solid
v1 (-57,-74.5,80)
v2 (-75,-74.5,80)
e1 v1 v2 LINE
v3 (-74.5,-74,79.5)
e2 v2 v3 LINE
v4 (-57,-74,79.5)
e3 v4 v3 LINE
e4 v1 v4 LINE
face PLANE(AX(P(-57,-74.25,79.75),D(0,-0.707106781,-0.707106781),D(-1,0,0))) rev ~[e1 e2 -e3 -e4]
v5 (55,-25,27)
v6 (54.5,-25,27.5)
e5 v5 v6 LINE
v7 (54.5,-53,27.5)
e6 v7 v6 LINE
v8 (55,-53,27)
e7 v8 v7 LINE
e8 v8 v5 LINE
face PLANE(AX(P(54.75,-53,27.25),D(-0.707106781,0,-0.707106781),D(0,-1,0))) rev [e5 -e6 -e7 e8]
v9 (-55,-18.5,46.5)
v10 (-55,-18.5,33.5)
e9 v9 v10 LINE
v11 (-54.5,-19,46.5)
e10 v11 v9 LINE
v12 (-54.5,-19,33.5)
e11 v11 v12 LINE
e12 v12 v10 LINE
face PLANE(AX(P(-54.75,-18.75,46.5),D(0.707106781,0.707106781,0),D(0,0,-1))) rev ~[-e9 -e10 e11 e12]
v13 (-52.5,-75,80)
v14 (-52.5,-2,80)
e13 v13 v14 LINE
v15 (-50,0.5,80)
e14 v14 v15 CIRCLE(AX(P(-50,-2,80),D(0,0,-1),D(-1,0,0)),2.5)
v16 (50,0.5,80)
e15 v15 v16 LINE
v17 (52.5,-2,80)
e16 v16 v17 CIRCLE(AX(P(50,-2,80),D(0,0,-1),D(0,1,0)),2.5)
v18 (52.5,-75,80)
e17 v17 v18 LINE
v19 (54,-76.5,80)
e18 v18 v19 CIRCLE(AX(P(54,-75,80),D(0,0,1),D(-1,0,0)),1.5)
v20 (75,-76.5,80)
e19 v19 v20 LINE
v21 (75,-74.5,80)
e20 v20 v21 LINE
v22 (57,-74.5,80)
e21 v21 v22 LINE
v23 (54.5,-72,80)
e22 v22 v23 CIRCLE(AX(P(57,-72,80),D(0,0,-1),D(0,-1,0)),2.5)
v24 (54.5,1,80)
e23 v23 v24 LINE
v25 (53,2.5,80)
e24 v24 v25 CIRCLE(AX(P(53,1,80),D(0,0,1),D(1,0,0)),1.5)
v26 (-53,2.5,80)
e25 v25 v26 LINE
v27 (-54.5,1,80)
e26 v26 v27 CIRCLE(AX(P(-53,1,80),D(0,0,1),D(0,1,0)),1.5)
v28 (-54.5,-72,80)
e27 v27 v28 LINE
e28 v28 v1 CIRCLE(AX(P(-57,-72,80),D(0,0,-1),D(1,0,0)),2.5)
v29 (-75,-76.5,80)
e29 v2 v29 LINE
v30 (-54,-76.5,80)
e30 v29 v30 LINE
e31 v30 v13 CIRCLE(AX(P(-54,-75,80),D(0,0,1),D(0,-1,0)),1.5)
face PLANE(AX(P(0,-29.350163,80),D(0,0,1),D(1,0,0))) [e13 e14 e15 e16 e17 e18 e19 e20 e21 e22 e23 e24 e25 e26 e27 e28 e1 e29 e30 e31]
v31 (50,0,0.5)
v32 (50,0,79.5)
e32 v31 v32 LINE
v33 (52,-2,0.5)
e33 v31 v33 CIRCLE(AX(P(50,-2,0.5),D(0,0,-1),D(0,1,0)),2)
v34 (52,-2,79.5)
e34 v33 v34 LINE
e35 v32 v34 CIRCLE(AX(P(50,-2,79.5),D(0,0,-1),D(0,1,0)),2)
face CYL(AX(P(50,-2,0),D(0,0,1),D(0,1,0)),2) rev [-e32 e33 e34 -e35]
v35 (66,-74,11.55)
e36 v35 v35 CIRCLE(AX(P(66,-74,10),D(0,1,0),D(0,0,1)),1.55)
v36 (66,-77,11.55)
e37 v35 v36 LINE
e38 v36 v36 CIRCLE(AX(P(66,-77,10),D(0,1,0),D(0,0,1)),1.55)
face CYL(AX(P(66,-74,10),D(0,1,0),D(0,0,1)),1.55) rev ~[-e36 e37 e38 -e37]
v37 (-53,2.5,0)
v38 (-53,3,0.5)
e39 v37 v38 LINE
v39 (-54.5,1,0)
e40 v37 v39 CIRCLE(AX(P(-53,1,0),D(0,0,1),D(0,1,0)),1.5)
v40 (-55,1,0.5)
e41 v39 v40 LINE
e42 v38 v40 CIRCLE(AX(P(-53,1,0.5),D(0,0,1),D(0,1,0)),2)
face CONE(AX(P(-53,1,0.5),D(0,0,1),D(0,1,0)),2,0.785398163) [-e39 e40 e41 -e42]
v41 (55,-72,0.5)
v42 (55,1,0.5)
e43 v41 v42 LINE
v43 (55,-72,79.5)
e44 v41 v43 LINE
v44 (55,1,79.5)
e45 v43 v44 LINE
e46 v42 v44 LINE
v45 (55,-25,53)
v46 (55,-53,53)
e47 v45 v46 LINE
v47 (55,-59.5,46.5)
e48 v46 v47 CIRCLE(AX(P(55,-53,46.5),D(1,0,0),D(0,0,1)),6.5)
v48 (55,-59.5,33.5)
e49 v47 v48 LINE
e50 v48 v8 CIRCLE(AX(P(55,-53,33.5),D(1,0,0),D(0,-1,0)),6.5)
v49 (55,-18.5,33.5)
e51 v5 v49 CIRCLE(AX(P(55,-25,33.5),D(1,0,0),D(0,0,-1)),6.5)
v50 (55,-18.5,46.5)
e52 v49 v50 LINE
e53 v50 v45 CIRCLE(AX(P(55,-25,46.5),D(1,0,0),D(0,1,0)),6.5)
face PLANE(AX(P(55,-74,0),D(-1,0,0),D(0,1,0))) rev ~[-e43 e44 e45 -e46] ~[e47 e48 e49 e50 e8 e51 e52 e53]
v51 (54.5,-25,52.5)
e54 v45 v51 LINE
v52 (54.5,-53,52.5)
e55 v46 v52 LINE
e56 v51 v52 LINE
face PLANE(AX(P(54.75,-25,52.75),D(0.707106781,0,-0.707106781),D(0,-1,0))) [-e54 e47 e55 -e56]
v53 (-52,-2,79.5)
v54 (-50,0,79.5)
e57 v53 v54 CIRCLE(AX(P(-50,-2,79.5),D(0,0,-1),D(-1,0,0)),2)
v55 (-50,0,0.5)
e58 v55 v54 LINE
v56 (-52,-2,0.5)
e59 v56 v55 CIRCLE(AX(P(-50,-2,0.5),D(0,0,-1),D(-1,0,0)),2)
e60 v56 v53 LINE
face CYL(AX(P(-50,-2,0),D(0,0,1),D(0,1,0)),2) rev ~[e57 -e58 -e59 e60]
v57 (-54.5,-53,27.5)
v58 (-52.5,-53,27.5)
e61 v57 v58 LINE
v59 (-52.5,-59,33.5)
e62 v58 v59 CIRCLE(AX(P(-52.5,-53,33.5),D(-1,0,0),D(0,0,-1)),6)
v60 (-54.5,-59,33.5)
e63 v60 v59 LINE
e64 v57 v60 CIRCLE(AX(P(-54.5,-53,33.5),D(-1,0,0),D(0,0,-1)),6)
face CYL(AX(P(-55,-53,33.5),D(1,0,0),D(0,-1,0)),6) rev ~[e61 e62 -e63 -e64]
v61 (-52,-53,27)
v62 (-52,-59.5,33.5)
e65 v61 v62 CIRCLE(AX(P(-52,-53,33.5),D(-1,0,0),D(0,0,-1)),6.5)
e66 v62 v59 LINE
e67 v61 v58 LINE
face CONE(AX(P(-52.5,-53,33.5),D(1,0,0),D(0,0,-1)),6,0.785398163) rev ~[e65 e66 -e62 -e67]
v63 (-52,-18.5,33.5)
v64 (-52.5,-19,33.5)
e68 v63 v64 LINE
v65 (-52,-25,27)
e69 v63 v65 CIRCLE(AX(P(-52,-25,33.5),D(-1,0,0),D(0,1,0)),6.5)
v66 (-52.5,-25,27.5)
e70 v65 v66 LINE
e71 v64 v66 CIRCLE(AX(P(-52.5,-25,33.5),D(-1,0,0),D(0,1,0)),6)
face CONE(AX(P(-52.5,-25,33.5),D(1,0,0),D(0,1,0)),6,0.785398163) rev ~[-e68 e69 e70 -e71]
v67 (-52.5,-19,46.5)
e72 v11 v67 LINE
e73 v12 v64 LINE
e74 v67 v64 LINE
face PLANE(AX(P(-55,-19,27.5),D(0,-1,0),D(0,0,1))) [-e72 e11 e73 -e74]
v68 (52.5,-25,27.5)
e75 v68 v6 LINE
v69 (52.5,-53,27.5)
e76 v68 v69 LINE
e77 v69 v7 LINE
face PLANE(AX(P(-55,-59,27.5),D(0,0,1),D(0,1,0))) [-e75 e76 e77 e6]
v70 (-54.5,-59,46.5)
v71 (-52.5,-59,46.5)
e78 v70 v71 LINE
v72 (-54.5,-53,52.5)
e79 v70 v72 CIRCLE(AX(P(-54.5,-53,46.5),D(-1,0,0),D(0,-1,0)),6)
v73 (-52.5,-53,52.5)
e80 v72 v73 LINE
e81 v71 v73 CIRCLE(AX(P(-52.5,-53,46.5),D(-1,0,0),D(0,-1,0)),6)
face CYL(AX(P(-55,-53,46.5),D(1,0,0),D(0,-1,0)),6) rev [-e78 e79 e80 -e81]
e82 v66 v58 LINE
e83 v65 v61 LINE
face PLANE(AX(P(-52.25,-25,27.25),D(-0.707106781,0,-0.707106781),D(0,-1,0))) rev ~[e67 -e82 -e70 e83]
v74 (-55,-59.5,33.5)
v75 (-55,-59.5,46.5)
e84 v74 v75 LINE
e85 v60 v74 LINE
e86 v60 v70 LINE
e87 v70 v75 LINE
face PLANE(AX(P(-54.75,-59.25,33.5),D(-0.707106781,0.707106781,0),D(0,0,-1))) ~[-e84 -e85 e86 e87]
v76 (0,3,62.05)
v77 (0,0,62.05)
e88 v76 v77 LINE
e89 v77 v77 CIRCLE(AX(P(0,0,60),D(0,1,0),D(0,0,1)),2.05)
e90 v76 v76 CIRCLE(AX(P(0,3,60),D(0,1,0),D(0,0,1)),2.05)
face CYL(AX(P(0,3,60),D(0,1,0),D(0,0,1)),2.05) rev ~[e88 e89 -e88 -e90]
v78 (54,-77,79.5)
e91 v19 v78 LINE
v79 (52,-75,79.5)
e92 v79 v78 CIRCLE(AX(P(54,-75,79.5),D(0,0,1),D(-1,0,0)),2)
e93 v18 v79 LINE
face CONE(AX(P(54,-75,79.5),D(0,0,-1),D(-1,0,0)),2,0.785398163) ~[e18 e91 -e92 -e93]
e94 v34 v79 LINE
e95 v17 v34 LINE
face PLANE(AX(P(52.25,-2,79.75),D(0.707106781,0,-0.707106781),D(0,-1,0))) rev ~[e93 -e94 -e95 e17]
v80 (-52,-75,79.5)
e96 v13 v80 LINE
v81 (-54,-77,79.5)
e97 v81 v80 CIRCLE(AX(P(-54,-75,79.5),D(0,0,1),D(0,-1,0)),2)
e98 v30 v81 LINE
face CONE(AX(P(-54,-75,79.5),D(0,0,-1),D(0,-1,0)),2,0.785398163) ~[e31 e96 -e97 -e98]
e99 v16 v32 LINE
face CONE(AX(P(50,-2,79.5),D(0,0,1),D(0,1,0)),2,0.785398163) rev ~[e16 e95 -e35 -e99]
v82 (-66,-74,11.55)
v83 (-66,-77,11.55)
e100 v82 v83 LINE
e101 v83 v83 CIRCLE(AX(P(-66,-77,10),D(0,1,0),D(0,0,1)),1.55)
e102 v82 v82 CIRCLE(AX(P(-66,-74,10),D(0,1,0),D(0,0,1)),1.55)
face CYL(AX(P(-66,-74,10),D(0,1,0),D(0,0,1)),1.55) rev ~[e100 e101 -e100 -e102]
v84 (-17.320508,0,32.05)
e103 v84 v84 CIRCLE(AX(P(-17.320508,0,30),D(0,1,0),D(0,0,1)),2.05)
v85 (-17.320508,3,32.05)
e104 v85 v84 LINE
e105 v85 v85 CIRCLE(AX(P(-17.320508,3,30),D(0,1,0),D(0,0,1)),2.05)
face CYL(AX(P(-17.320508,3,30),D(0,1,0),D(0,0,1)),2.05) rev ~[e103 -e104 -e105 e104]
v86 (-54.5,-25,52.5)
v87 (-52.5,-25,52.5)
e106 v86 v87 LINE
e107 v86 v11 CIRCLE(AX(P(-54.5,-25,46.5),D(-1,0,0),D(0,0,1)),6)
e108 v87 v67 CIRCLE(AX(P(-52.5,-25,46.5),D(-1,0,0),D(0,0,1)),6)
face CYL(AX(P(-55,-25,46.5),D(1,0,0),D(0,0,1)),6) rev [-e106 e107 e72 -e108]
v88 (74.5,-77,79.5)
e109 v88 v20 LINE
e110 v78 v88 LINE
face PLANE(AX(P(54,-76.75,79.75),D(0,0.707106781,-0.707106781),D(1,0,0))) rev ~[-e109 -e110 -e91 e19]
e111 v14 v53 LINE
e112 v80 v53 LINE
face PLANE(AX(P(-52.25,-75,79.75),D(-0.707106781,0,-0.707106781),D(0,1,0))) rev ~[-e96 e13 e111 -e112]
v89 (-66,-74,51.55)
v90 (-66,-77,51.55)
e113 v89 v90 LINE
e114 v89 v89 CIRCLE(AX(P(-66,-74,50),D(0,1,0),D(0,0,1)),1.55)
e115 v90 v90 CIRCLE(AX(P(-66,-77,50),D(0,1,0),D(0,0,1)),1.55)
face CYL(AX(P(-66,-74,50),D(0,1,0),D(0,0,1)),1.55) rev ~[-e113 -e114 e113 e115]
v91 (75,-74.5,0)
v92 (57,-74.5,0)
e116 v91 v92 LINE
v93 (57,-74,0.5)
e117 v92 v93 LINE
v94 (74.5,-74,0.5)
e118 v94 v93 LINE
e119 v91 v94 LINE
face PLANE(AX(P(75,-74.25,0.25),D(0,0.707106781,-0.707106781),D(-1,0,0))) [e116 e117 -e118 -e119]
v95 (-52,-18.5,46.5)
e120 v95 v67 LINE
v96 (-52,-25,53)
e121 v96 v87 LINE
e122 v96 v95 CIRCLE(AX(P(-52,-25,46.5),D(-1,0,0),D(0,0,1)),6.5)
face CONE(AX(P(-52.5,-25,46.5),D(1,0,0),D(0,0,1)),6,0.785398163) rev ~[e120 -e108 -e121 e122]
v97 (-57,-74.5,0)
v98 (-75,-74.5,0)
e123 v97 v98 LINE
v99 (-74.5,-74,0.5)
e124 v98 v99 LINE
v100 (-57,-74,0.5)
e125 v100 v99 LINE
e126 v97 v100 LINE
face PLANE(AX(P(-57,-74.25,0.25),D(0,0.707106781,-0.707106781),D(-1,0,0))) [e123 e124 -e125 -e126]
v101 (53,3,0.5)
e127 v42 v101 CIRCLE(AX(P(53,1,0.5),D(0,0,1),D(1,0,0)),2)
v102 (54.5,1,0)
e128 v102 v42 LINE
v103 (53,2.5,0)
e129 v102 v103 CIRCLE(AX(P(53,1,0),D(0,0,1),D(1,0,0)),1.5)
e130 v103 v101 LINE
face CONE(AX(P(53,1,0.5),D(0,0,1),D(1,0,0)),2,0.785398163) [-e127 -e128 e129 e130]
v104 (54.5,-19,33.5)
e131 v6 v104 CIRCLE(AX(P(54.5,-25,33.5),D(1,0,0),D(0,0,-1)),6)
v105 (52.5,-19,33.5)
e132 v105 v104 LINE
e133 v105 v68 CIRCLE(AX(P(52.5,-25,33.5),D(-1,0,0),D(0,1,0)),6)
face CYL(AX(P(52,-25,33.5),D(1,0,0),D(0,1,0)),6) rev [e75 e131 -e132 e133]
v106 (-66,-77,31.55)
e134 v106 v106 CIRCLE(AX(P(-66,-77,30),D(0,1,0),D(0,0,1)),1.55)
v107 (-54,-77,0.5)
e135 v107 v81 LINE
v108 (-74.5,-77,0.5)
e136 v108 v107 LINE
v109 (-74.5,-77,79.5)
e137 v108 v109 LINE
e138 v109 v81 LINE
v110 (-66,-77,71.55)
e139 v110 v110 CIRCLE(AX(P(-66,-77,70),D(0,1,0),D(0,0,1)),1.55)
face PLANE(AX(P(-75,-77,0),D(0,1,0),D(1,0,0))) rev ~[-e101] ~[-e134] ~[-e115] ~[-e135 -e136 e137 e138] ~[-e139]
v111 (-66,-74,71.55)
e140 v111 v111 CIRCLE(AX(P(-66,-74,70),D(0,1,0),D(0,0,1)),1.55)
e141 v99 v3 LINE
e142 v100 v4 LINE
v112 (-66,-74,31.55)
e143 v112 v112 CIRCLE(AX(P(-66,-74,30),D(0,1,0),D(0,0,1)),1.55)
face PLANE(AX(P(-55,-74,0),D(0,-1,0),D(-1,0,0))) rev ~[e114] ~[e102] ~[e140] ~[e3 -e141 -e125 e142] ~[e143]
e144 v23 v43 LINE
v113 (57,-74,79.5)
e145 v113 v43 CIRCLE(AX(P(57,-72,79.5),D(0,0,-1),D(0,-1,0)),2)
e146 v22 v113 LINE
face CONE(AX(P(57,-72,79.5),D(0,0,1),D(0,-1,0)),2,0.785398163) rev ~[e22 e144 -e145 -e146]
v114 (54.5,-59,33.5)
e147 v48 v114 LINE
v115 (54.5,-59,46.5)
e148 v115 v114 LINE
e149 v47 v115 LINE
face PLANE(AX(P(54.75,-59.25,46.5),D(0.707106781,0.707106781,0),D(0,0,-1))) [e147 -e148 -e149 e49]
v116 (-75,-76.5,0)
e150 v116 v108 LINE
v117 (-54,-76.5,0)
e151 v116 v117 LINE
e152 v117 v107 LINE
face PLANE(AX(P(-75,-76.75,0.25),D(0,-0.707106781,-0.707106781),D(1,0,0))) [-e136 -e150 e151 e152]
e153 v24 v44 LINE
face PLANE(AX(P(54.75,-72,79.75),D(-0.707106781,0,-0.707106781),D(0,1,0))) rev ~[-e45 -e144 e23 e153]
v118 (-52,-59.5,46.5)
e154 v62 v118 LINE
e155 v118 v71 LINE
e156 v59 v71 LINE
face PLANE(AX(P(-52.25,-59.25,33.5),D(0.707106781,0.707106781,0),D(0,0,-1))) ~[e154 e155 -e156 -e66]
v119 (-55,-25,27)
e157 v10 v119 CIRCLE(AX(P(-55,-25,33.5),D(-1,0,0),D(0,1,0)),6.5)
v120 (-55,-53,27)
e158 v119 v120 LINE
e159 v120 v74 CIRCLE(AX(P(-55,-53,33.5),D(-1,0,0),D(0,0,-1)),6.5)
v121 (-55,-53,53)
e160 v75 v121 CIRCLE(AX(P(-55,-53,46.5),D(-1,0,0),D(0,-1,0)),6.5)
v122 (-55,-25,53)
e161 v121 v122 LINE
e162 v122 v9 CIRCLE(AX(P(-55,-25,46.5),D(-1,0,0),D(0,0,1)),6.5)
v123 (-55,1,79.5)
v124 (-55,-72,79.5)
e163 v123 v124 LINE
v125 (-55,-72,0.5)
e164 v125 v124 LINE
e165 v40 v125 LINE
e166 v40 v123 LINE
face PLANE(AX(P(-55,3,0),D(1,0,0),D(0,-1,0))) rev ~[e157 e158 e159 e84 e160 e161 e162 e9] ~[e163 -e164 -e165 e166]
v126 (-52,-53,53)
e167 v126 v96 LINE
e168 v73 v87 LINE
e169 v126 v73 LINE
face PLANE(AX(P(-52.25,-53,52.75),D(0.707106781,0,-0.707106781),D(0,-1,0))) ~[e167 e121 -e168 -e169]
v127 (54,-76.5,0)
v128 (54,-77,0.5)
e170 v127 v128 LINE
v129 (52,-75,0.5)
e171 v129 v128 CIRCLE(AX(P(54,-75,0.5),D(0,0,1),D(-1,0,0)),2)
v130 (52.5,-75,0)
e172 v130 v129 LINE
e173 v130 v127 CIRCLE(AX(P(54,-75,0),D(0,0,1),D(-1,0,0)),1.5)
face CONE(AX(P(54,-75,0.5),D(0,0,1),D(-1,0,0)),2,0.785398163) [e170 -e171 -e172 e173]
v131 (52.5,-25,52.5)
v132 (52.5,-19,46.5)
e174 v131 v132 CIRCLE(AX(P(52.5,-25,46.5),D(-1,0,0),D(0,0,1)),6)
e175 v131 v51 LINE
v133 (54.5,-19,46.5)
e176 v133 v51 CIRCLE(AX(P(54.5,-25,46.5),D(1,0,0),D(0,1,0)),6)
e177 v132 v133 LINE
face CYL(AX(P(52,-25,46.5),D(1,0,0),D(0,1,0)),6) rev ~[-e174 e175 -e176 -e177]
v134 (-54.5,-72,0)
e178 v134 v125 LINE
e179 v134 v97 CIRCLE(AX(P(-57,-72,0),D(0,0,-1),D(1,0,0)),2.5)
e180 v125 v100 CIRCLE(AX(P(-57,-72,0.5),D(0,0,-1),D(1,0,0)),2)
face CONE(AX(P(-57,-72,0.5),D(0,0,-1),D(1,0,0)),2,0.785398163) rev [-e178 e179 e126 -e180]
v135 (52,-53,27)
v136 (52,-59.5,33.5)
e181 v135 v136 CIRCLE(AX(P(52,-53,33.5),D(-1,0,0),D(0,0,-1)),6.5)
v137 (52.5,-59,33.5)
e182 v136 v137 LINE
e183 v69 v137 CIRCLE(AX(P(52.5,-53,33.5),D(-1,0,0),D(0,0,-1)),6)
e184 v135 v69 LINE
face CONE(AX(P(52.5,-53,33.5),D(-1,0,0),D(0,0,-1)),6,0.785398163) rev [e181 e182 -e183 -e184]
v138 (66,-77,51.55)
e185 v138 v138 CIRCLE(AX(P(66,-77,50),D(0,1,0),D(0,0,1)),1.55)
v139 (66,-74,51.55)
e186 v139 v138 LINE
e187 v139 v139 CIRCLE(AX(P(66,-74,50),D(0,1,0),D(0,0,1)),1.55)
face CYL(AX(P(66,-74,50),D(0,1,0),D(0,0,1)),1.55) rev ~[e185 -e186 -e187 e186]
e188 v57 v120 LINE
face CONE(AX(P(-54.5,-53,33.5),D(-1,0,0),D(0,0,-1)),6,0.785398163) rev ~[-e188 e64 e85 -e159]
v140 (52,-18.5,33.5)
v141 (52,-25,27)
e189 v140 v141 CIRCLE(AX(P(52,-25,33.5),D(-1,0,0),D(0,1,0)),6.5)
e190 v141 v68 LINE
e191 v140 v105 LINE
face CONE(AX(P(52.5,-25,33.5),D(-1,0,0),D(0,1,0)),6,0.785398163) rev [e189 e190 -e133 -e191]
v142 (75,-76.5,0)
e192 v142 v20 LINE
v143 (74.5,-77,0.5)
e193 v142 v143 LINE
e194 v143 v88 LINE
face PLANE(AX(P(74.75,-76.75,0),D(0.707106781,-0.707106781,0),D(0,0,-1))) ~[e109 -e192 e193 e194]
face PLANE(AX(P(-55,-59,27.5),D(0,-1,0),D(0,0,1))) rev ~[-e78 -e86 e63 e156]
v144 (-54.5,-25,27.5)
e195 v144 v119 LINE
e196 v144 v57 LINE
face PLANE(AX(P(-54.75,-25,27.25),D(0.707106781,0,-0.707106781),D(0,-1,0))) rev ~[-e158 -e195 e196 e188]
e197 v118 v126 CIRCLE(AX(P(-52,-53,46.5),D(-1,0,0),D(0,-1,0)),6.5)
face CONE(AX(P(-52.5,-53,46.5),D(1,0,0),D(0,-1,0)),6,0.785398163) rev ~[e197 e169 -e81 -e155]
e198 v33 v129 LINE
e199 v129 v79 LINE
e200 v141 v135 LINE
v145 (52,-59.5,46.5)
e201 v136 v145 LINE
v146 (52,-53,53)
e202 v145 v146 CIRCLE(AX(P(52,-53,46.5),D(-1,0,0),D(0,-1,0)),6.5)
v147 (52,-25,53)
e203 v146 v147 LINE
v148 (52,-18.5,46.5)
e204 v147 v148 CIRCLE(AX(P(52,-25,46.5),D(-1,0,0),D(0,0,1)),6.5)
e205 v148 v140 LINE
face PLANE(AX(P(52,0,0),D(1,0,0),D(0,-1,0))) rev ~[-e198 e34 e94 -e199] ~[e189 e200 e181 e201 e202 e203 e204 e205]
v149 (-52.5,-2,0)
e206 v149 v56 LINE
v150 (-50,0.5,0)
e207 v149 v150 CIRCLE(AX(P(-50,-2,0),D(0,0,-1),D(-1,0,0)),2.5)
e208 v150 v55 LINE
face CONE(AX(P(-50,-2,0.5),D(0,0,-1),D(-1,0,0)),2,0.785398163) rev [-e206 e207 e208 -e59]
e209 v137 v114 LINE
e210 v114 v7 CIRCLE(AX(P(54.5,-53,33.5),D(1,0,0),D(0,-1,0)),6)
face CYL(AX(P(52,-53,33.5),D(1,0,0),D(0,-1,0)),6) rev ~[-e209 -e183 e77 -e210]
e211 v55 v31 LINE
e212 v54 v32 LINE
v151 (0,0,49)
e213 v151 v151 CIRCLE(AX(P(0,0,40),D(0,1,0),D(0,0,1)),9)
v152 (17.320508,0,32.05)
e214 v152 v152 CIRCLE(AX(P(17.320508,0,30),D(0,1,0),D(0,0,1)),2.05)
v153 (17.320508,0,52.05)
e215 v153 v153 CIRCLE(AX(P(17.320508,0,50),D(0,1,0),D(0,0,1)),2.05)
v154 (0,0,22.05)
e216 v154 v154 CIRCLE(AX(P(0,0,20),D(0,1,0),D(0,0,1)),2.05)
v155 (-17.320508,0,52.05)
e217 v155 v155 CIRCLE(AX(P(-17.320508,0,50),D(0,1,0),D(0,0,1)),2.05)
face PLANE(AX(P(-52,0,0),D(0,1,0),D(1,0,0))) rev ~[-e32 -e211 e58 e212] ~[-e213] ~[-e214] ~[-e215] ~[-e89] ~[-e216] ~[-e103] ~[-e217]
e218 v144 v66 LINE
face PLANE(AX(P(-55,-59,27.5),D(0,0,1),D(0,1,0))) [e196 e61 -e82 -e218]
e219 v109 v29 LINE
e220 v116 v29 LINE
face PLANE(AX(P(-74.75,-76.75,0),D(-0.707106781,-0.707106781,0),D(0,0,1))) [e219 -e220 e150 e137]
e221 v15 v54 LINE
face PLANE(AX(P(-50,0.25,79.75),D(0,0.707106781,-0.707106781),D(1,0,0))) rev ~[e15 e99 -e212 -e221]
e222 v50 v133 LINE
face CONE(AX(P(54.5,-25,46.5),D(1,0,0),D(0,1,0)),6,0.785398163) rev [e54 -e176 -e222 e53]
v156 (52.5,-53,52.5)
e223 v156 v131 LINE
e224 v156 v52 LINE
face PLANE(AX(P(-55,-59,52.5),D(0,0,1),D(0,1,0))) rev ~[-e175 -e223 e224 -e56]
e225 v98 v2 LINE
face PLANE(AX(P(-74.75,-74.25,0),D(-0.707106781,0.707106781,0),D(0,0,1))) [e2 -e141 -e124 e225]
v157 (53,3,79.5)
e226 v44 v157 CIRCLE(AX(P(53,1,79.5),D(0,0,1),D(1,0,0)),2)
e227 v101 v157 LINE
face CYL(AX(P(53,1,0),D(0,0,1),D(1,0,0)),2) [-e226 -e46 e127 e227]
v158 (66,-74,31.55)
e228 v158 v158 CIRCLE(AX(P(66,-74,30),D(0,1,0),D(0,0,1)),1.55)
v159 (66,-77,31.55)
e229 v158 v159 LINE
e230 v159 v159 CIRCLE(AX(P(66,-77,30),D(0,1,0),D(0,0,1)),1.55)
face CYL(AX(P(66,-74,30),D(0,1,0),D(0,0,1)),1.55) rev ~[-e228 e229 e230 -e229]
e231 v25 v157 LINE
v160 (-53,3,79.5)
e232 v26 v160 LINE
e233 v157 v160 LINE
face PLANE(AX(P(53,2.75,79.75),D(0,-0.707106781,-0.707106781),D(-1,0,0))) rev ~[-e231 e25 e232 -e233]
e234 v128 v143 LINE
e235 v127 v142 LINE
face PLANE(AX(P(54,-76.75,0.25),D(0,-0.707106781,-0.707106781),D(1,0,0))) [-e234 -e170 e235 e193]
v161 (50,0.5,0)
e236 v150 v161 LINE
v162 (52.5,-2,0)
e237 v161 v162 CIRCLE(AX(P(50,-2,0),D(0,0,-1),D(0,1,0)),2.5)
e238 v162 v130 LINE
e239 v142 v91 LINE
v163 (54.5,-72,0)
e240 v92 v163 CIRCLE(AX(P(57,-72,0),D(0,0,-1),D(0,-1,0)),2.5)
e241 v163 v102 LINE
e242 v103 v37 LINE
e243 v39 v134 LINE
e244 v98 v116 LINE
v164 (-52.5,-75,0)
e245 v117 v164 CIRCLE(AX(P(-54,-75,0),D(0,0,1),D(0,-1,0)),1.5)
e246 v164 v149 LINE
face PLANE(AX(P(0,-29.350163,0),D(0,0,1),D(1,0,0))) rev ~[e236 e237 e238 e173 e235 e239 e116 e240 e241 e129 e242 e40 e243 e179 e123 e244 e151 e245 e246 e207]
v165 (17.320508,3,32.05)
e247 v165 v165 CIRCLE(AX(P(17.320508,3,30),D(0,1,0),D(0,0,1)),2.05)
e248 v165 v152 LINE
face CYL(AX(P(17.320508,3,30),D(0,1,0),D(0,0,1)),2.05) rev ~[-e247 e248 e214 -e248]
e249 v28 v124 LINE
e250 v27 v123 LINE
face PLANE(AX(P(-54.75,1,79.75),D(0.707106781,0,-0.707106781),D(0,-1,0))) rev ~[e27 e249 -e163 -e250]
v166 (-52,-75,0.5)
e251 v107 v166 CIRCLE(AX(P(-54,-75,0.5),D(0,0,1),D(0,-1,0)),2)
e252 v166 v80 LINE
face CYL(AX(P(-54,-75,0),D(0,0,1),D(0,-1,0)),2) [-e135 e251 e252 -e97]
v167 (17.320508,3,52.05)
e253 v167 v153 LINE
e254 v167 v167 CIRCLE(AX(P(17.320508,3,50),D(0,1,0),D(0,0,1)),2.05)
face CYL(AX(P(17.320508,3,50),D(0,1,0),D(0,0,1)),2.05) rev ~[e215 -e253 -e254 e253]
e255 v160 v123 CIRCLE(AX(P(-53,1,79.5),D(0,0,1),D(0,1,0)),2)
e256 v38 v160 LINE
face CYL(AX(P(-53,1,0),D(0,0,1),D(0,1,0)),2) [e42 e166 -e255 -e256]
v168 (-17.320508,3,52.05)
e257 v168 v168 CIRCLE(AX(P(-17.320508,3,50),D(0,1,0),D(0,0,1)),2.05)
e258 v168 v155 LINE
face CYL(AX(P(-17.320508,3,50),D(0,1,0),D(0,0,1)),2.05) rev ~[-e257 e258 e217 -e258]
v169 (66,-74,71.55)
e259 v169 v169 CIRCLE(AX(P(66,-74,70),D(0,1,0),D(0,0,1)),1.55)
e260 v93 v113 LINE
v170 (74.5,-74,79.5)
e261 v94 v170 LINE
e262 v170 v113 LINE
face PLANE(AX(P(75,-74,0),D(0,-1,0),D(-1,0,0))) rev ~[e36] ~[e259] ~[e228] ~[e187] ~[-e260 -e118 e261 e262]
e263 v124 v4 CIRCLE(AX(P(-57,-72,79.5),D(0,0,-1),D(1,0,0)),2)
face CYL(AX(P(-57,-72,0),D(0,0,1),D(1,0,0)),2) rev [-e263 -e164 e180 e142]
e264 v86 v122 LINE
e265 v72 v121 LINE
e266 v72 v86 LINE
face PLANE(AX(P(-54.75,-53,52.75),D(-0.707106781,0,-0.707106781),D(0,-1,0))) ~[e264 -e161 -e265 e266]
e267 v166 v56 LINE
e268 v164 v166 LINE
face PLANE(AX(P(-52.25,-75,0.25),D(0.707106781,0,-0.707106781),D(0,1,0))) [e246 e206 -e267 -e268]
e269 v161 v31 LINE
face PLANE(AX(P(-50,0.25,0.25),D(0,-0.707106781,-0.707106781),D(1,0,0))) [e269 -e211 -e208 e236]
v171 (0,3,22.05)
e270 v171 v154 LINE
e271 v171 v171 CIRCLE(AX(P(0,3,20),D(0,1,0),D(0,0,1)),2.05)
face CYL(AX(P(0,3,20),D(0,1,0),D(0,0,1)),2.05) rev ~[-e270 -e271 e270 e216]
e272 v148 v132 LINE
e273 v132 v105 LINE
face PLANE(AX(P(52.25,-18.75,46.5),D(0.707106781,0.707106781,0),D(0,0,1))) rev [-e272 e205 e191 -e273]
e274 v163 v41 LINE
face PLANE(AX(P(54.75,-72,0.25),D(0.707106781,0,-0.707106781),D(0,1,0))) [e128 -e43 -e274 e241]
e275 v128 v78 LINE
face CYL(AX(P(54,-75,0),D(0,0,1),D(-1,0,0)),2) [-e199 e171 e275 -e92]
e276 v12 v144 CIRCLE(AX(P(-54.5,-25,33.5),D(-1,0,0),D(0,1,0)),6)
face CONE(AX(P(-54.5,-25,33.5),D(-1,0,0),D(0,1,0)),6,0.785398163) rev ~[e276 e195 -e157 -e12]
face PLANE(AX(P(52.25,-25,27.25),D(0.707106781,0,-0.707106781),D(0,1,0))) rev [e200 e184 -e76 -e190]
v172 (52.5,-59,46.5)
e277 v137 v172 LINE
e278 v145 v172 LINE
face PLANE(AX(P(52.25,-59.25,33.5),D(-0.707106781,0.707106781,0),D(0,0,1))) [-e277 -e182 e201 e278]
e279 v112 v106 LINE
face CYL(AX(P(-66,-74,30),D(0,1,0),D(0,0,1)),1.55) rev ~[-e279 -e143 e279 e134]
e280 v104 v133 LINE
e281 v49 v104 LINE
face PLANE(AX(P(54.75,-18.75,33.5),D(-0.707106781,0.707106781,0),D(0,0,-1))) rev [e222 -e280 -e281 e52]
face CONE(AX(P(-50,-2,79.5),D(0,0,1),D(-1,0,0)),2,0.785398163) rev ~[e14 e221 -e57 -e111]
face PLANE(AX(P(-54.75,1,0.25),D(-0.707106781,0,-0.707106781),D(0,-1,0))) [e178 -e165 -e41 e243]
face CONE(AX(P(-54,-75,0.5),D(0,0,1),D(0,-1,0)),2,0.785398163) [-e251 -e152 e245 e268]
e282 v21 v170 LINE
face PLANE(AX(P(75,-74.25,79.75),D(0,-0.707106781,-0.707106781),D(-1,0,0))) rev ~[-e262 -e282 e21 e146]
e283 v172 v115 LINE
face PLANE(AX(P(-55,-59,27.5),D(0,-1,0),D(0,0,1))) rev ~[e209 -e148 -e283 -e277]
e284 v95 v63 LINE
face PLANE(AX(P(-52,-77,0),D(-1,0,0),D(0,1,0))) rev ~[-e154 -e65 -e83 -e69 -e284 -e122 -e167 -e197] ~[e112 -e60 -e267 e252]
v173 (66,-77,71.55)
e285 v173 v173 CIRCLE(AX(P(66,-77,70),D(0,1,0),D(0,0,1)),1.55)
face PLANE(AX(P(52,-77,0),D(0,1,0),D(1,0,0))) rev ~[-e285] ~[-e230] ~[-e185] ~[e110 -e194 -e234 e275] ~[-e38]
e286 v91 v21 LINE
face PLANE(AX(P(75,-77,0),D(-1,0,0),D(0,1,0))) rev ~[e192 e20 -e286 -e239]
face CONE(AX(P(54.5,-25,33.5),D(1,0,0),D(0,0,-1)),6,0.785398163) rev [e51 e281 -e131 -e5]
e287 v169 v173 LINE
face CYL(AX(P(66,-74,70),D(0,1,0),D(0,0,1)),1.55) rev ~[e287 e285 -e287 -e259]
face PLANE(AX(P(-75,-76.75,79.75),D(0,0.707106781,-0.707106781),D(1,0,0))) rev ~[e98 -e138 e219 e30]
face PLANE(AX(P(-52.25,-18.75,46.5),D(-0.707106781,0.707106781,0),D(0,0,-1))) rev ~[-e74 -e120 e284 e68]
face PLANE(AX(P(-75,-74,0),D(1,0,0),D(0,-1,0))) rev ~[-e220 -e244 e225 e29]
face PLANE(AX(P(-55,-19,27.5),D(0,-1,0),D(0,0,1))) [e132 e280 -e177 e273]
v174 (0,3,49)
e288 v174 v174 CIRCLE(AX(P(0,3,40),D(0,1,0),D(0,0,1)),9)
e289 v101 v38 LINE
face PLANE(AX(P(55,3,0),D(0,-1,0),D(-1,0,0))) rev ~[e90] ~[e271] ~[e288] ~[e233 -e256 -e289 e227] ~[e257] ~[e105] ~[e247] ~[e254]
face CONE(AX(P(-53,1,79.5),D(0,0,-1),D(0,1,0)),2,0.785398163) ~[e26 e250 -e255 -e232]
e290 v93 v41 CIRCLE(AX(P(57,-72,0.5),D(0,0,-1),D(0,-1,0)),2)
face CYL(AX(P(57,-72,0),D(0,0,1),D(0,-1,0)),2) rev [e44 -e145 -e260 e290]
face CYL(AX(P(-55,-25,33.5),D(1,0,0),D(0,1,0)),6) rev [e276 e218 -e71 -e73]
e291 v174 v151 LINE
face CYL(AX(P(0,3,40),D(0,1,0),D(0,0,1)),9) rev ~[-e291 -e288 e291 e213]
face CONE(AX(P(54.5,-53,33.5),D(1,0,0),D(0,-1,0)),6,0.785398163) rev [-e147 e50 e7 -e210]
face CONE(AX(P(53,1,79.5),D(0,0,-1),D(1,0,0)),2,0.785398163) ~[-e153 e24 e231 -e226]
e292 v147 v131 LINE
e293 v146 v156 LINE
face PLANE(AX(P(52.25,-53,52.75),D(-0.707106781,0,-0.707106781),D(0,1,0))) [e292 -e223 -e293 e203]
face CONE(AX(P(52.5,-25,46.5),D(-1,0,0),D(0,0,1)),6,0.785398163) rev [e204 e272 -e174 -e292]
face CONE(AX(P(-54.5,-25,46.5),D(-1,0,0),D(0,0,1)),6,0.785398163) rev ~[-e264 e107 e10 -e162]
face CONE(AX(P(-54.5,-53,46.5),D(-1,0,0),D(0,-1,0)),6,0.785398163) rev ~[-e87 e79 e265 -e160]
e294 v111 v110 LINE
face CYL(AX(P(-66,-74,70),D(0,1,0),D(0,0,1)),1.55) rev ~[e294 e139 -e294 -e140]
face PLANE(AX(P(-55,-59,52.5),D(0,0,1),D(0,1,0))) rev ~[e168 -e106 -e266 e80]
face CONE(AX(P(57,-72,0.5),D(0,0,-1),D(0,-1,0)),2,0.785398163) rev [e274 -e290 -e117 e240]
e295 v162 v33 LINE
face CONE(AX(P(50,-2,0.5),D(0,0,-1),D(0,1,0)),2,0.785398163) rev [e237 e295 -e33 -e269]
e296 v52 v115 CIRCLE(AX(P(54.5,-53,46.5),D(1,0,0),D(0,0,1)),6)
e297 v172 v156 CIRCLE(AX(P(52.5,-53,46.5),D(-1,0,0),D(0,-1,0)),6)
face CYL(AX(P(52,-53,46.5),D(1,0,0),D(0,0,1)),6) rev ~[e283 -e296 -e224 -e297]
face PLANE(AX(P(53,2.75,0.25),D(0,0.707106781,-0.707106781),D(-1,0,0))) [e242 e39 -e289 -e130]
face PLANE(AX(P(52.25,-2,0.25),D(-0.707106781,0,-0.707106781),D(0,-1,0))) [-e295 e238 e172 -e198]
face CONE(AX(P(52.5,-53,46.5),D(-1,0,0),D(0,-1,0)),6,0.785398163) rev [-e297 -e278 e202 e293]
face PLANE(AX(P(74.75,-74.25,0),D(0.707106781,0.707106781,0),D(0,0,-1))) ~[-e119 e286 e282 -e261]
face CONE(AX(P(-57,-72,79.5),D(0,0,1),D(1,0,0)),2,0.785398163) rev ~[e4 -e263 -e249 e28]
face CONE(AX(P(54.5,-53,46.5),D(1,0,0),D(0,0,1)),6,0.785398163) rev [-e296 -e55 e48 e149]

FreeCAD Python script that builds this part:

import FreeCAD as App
import Part
import Sketcher
Q = App.Units.Quantity


def edges_at(feature, points):
    """Names of the edges that pass closest to the given points."""
    edges = feature.Shape.Edges
    near = lambda p: min(range(len(edges)), key=lambda i: edges[i].distToShape(Part.Vertex(*p))[0])
    return sorted({f"Edge{near(p) + 1}" for p in points})


def add_polygon(sketch, points):
    """Adds a closed chain of lines whose ends are joined by coincident constraints."""
    first, n = sketch.GeometryCount, len(points)
    for a, b in zip(points, points[1:] + points[:1]):
        sketch.addGeometry(Part.LineSegment(App.Vector(*a, 0), App.Vector(*b, 0)), False)
    for i in range(n):
        sketch.addConstraint(Sketcher.Constraint("Coincident", first + i, 2, first + (i + 1) % n, 1))

doc = App.newDocument("Part")
body = doc.addObject("PartDesign::Body", "Body")

sketch1 = body.newObject("Sketcher::SketchObject", "Sketch")
sketch1.AttachmentSupport = (doc.getObject("XY_Plane"), [""])
sketch1.MapMode = "FlatFace"
add_polygon(sketch1, [(-52, 0), (52, 0), (52, -77), (75, -77), (75, -74), (55, -74), (55, 3), (-55, 3), (-55, -74), (-75, -74), (-75, -77), (-52, -77)])
sketch1.addConstraint(Sketcher.Constraint("Horizontal", 0))
sketch1.addConstraint(Sketcher.Constraint("Vertical", 1))
sketch1.addConstraint(Sketcher.Constraint("Horizontal", 2))
sketch1.addConstraint(Sketcher.Constraint("Vertical", 3))
sketch1.addConstraint(Sketcher.Constraint("Horizontal", 4))
sketch1.addConstraint(Sketcher.Constraint("Vertical", 5))
sketch1.addConstraint(Sketcher.Constraint("Horizontal", 6))
sketch1.addConstraint(Sketcher.Constraint("Vertical", 7))
sketch1.addConstraint(Sketcher.Constraint("Horizontal", 8))
sketch1.addConstraint(Sketcher.Constraint("Vertical", 9))
sketch1.addConstraint(Sketcher.Constraint("Horizontal", 10))
sketch1.addConstraint(Sketcher.Constraint("Vertical", 11))
sketch1.addConstraint(Sketcher.Constraint("Symmetric", 0, 2, 11, 2, -1, 1))
sketch1.addConstraint(Sketcher.Constraint("Symmetric", 4, 2, 7, 2, -2))
sketch1.addConstraint(Sketcher.Constraint("Symmetric", 2, 2, 9, 2, -2))
sketch1.addConstraint(Sketcher.Constraint("Equal", 1, 5))
sketch1.addConstraint(Sketcher.Constraint("DistanceX", 0, 1, 0, 2, Q("104 mm")))
sketch1.addConstraint(Sketcher.Constraint("DistanceX", 2, 1, 2, 2, Q("23 mm")))
sketch1.addConstraint(Sketcher.Constraint("DistanceX", 4, 2, 4, 1, Q("20 mm")))
sketch1.addConstraint(Sketcher.Constraint("DistanceY", 1, 2, 1, 1, Q("77 mm")))
sketch1.addConstraint(Sketcher.Constraint("DistanceY", 3, 1, 3, 2, Q("3 mm")))
pad1 = body.newObject("PartDesign::Pad", "Pad")
pad1.Profile = sketch1
pad1.Length = 80
doc.recompute()

fillet = body.newObject("PartDesign::Fillet", "Fillet")
fillet.Base = (pad1, edges_at(pad1, [
    (52, 0, 40),
    (-52, 0, 40),
    (-52, -77, 40),
    (-55, -74, 40),
    (-55, 3, 40),
    (55, 3, 40),
    (55, -74, 40),
    (52, -77, 40),
]))
fillet.Radius = 2

sketch2 = body.newObject("Sketcher::SketchObject", "Sketch001")
sketch2.AttachmentSupport = (doc.getObject("XZ_Plane"), [""])
sketch2.MapMode = "FlatFace"
sketch2.AttachmentOffset = App.Placement(App.Vector(0, 0, -3), App.Rotation())
sketch2.addGeometry(Part.Circle(App.Vector(-17.320508, 30, 0), App.Vector(0, 0, 1), 2.05), False)
sketch2.addConstraint(Sketcher.Constraint("Diameter", 0, Q("4.1 mm")))
sketch2.addConstraint(Sketcher.Constraint("DistanceY", -1, 1, 0, 3, Q("30 mm")))
sketch2.addConstraint(Sketcher.Constraint("DistanceX", 0, 3, -1, 1, Q("17.320508 mm")))
pocket1 = body.newObject("PartDesign::Pocket", "Pocket")
pocket1.Profile = sketch2
pocket1.Type = "UpToFirst"
pocket1.Reversed = True

sketch3 = body.newObject("Sketcher::SketchObject", "Sketch002")
sketch3.AttachmentSupport = (doc.getObject("XZ_Plane"), [""])
sketch3.MapMode = "FlatFace"
sketch3.AttachmentOffset = App.Placement(App.Vector(0, 0, -3), App.Rotation())
sketch3.addGeometry(Part.Circle(App.Vector(0, 20, 0), App.Vector(0, 0, 1), 2.05), False)
sketch3.addConstraint(Sketcher.Constraint("PointOnObject", 0, 3, -2))
sketch3.addConstraint(Sketcher.Constraint("Diameter", 0, Q("4.1 mm")))
sketch3.addConstraint(Sketcher.Constraint("DistanceY", -1, 1, 0, 3, Q("20 mm")))
pocket2 = body.newObject("PartDesign::Pocket", "Pocket001")
pocket2.Profile = sketch3
pocket2.Type = "UpToFirst"
pocket2.Reversed = True

sketch4 = body.newObject("Sketcher::SketchObject", "Sketch003")
sketch4.AttachmentSupport = (doc.getObject("XZ_Plane"), [""])
sketch4.MapMode = "FlatFace"
sketch4.AttachmentOffset = App.Placement(App.Vector(0, 0, -3), App.Rotation())
sketch4.addGeometry(Part.Circle(App.Vector(17.320508, 30, 0), App.Vector(0, 0, 1), 2.05), False)
sketch4.addConstraint(Sketcher.Constraint("Diameter", 0, Q("4.1 mm")))
sketch4.addConstraint(Sketcher.Constraint("DistanceY", -1, 1, 0, 3, Q("30 mm")))
sketch4.addConstraint(Sketcher.Constraint("DistanceX", -1, 1, 0, 3, Q("17.320508 mm")))
pocket3 = body.newObject("PartDesign::Pocket", "Pocket002")
pocket3.Profile = sketch4
pocket3.Type = "UpToFirst"
pocket3.Reversed = True

sketch5 = body.newObject("Sketcher::SketchObject", "Sketch004")
sketch5.AttachmentSupport = (doc.getObject("XZ_Plane"), [""])
sketch5.MapMode = "FlatFace"
sketch5.AttachmentOffset = App.Placement(App.Vector(0, 0, -3), App.Rotation())
sketch5.addGeometry(Part.Circle(App.Vector(17.320508, 50, 0), App.Vector(0, 0, 1), 2.05), False)
sketch5.addConstraint(Sketcher.Constraint("Diameter", 0, Q("4.1 mm")))
sketch5.addConstraint(Sketcher.Constraint("DistanceY", -1, 1, 0, 3, Q("50 mm")))
sketch5.addConstraint(Sketcher.Constraint("DistanceX", -1, 1, 0, 3, Q("17.320508 mm")))
pocket4 = body.newObject("PartDesign::Pocket", "Pocket003")
pocket4.Profile = sketch5
pocket4.Type = "UpToFirst"
pocket4.Reversed = True

sketch6 = body.newObject("Sketcher::SketchObject", "Sketch005")
sketch6.AttachmentSupport = (doc.getObject("XZ_Plane"), [""])
sketch6.MapMode = "FlatFace"
sketch6.AttachmentOffset = App.Placement(App.Vector(0, 0, -3), App.Rotation())
sketch6.addGeometry(Part.Circle(App.Vector(0, 40, 0), App.Vector(0, 0, 1), 9), False)
sketch6.addConstraint(Sketcher.Constraint("PointOnObject", 0, 3, -2))
sketch6.addConstraint(Sketcher.Constraint("Diameter", 0, Q("18 mm")))
sketch6.addConstraint(Sketcher.Constraint("DistanceY", -1, 1, 0, 3, Q("40 mm")))
pocket5 = body.newObject("PartDesign::Pocket", "Pocket004")
pocket5.Profile = sketch6
pocket5.Type = "UpToFirst"
pocket5.Reversed = True

sketch7 = body.newObject("Sketcher::SketchObject", "Sketch006")
sketch7.AttachmentSupport = (doc.getObject("XZ_Plane"), [""])
sketch7.MapMode = "FlatFace"
sketch7.AttachmentOffset = App.Placement(App.Vector(0, 0, -3), App.Rotation())
sketch7.addGeometry(Part.Circle(App.Vector(0, 60, 0), App.Vector(0, 0, 1), 2.05), False)
sketch7.addConstraint(Sketcher.Constraint("PointOnObject", 0, 3, -2))
sketch7.addConstraint(Sketcher.Constraint("Diameter", 0, Q("4.1 mm")))
sketch7.addConstraint(Sketcher.Constraint("DistanceY", -1, 1, 0, 3, Q("60 mm")))
pocket6 = body.newObject("PartDesign::Pocket", "Pocket005")
pocket6.Profile = sketch7
pocket6.Type = "UpToFirst"
pocket6.Reversed = True

sketch8 = body.newObject("Sketcher::SketchObject", "Sketch007")
sketch8.AttachmentSupport = (doc.getObject("XZ_Plane"), [""])
sketch8.MapMode = "FlatFace"
sketch8.AttachmentOffset = App.Placement(App.Vector(0, 0, -3), App.Rotation())
sketch8.addGeometry(Part.Circle(App.Vector(-17.320508, 50, 0), App.Vector(0, 0, 1), 2.05), False)
sketch8.addConstraint(Sketcher.Constraint("Diameter", 0, Q("4.1 mm")))
sketch8.addConstraint(Sketcher.Constraint("DistanceY", -1, 1, 0, 3, Q("50 mm")))
sketch8.addConstraint(Sketcher.Constraint("DistanceX", 0, 3, -1, 1, Q("17.320508 mm")))
pocket7 = body.newObject("PartDesign::Pocket", "Pocket006")
pocket7.Profile = sketch8
pocket7.Type = "UpToFirst"
pocket7.Reversed = True

sketch9 = body.newObject("Sketcher::SketchObject", "Sketch008")
sketch9.AttachmentSupport = (doc.getObject("XZ_Plane"), [""])
sketch9.MapMode = "FlatFace"
sketch9.AttachmentOffset = App.Placement(App.Vector(0, 0, 74), App.Rotation())
sketch9.addGeometry(Part.Circle(App.Vector(-66, 10, 0), App.Vector(0, 0, 1), 1.55), False)
sketch9.addConstraint(Sketcher.Constraint("Diameter", 0, Q("3.1 mm")))
sketch9.addConstraint(Sketcher.Constraint("DistanceX", 0, 3, -1, 1, Q("66 mm")))
sketch9.addConstraint(Sketcher.Constraint("DistanceY", -1, 1, 0, 3, Q("10 mm")))
pocket8 = body.newObject("PartDesign::Pocket", "Pocket007")
pocket8.Profile = sketch9
pocket8.Type = "UpToFirst"
pocket8.Reversed = True

sketch10 = body.newObject("Sketcher::SketchObject", "Sketch009")
sketch10.AttachmentSupport = (doc.getObject("XZ_Plane"), [""])
sketch10.MapMode = "FlatFace"
sketch10.AttachmentOffset = App.Placement(App.Vector(0, 0, 74), App.Rotation())
sketch10.addGeometry(Part.Circle(App.Vector(-66, 30, 0), App.Vector(0, 0, 1), 1.55), False)
sketch10.addConstraint(Sketcher.Constraint("Diameter", 0, Q("3.1 mm")))
sketch10.addConstraint(Sketcher.Constraint("DistanceX", 0, 3, -1, 1, Q("66 mm")))
sketch10.addConstraint(Sketcher.Constraint("DistanceY", -1, 1, 0, 3, Q("30 mm")))
pocket9 = body.newObject("PartDesign::Pocket", "Pocket008")
pocket9.Profile = sketch10
pocket9.Type = "UpToFirst"
pocket9.Reversed = True

sketch11 = body.newObject("Sketcher::SketchObject", "Sketch010")
sketch11.AttachmentSupport = (doc.getObject("XZ_Plane"), [""])
sketch11.MapMode = "FlatFace"
sketch11.AttachmentOffset = App.Placement(App.Vector(0, 0, 74), App.Rotation())
sketch11.addGeometry(Part.Circle(App.Vector(-66, 50, 0), App.Vector(0, 0, 1), 1.55), False)
sketch11.addConstraint(Sketcher.Constraint("Diameter", 0, Q("3.1 mm")))
sketch11.addConstraint(Sketcher.Constraint("DistanceX", 0, 3, -1, 1, Q("66 mm")))
sketch11.addConstraint(Sketcher.Constraint("DistanceY", -1, 1, 0, 3, Q("50 mm")))
pocket10 = body.newObject("PartDesign::Pocket", "Pocket009")
pocket10.Profile = sketch11
pocket10.Type = "UpToFirst"
pocket10.Reversed = True

sketch12 = body.newObject("Sketcher::SketchObject", "Sketch011")
sketch12.AttachmentSupport = (doc.getObject("XZ_Plane"), [""])
sketch12.MapMode = "FlatFace"
sketch12.AttachmentOffset = App.Placement(App.Vector(0, 0, 74), App.Rotation())
sketch12.addGeometry(Part.Circle(App.Vector(-66, 70, 0), App.Vector(0, 0, 1), 1.55), False)
sketch12.addConstraint(Sketcher.Constraint("Diameter", 0, Q("3.1 mm")))
sketch12.addConstraint(Sketcher.Constraint("DistanceX", 0, 3, -1, 1, Q("66 mm")))
sketch12.addConstraint(Sketcher.Constraint("DistanceY", -1, 1, 0, 3, Q("70 mm")))
pocket11 = body.newObject("PartDesign::Pocket", "Pocket010")
pocket11.Profile = sketch12
pocket11.Type = "UpToFirst"
pocket11.Reversed = True

sketch13 = body.newObject("Sketcher::SketchObject", "Sketch012")
sketch13.AttachmentSupport = (doc.getObject("XZ_Plane"), [""])
sketch13.MapMode = "FlatFace"
sketch13.AttachmentOffset = App.Placement(App.Vector(0, 0, 74), App.Rotation())
sketch13.addGeometry(Part.Circle(App.Vector(66, 70, 0), App.Vector(0, 0, 1), 1.55), False)
sketch13.addConstraint(Sketcher.Constraint("Diameter", 0, Q("3.1 mm")))
sketch13.addConstraint(Sketcher.Constraint("DistanceX", -1, 1, 0, 3, Q("66 mm")))
sketch13.addConstraint(Sketcher.Constraint("DistanceY", -1, 1, 0, 3, Q("70 mm")))
pocket12 = body.newObject("PartDesign::Pocket", "Pocket011")
pocket12.Profile = sketch13
pocket12.Type = "UpToFirst"
pocket12.Reversed = True

sketch14 = body.newObject("Sketcher::SketchObject", "Sketch013")
sketch14.AttachmentSupport = (doc.getObject("XZ_Plane"), [""])
sketch14.MapMode = "FlatFace"
sketch14.AttachmentOffset = App.Placement(App.Vector(0, 0, 74), App.Rotation())
sketch14.addGeometry(Part.Circle(App.Vector(66, 50, 0), App.Vector(0, 0, 1), 1.55), False)
sketch14.addConstraint(Sketcher.Constraint("Diameter", 0, Q("3.1 mm")))
sketch14.addConstraint(Sketcher.Constraint("DistanceX", -1, 1, 0, 3, Q("66 mm")))
sketch14.addConstraint(Sketcher.Constraint("DistanceY", -1, 1, 0, 3, Q("50 mm")))
pocket13 = body.newObject("PartDesign::Pocket", "Pocket012")
pocket13.Profile = sketch14
pocket13.Type = "UpToFirst"
pocket13.Reversed = True

sketch15 = body.newObject("Sketcher::SketchObject", "Sketch014")
sketch15.AttachmentSupport = (doc.getObject("XZ_Plane"), [""])
sketch15.MapMode = "FlatFace"
sketch15.AttachmentOffset = App.Placement(App.Vector(0, 0, 74), App.Rotation())
sketch15.addGeometry(Part.Circle(App.Vector(66, 30, 0), App.Vector(0, 0, 1), 1.55), False)
sketch15.addConstraint(Sketcher.Constraint("Diameter", 0, Q("3.1 mm")))
sketch15.addConstraint(Sketcher.Constraint("DistanceX", -1, 1, 0, 3, Q("66 mm")))
sketch15.addConstraint(Sketcher.Constraint("DistanceY", -1, 1, 0, 3, Q("30 mm")))
pocket14 = body.newObject("PartDesign::Pocket", "Pocket013")
pocket14.Profile = sketch15
pocket14.Type = "UpToFirst"
pocket14.Reversed = True

sketch16 = body.newObject("Sketcher::SketchObject", "Sketch015")
sketch16.AttachmentSupport = (doc.getObject("XZ_Plane"), [""])
sketch16.MapMode = "FlatFace"
sketch16.AttachmentOffset = App.Placement(App.Vector(0, 0, 74), App.Rotation())
sketch16.addGeometry(Part.Circle(App.Vector(66, 10, 0), App.Vector(0, 0, 1), 1.55), False)
sketch16.addConstraint(Sketcher.Constraint("Diameter", 0, Q("3.1 mm")))
sketch16.addConstraint(Sketcher.Constraint("DistanceX", -1, 1, 0, 3, Q("66 mm")))
sketch16.addConstraint(Sketcher.Constraint("DistanceY", -1, 1, 0, 3, Q("10 mm")))
pocket15 = body.newObject("PartDesign::Pocket", "Pocket014")
pocket15.Profile = sketch16
pocket15.Type = "UpToFirst"
pocket15.Reversed = True

sketch17 = body.newObject("Sketcher::SketchObject", "Sketch016")
sketch17.AttachmentSupport = (doc.getObject("YZ_Plane"), [""])
sketch17.MapMode = "FlatFace"
sketch17.AttachmentOffset = App.Placement(App.Vector(0, 0, -55), App.Rotation())
add_polygon(sketch17, [(-19, 27.5), (-59, 27.5), (-59, 52.5), (-19, 52.5)])
sketch17.addConstraint(Sketcher.Constraint("Horizontal", 0))
sketch17.addConstraint(Sketcher.Constraint("Vertical", 1))
sketch17.addConstraint(Sketcher.Constraint("Horizontal", 2))
sketch17.addConstraint(Sketcher.Constraint("Vertical", 3))
sketch17.addConstraint(Sketcher.Constraint("DistanceX", 0, 2, 0, 1, Q("40 mm")))
sketch17.addConstraint(Sketcher.Constraint("DistanceY", 1, 1, 1, 2, Q("25 mm")))
sketch17.addConstraint(Sketcher.Constraint("DistanceX", 0, 2, -1, 1, Q("59 mm")))
sketch17.addConstraint(Sketcher.Constraint("DistanceY", -1, 1, 0, 2, Q("27.5 mm")))
pocket16 = body.newObject("PartDesign::Pocket", "Pocket015")
pocket16.Profile = sketch17
pocket16.Type = "ThroughAll"
pocket16.Reversed = True
doc.recompute()

fillet2 = body.newObject("PartDesign::Fillet", "Fillet001")
fillet2.Base = (pocket16, edges_at(pocket16, [
    (53.5, -19, 52.5),
    (-53.5, -19, 52.5),
    (53.5, -59, 52.5),
    (-53.5, -59, 52.5),
    (53.5, -59, 27.5),
    (-53.5, -59, 27.5),
    (53.5, -19, 27.5),
    (-53.5, -19, 27.5),
]))
fillet2.Radius = 6
doc.recompute()

chamfer = body.newObject("PartDesign::Chamfer", "Chamfer")
chamfer.Base = (fillet2, edges_at(fillet2, [
    (-64.5, -77, 0),
    (66, -74, 80),
    (66, -74, 0),
    (55, -39, 27.5),
    (52, -39, 27.5),
    (55, -19, 40),
    (52, -19, 40),
    (55, -39, 52.5),
    (52, -39, 52.5),
    (55, -59, 40),
    (52, -59, 40),
    (-55, -59, 40),
    (-52, -59, 40),
    (-55, -39, 27.5),
    (-52, -39, 27.5),
    (-55, -39, 52.5),
    (-52, -39, 52.5),
    (-55, -19, 40),
    (-52, -19, 40),
    (52, -20.757, 29.257),
    (55, -20.757, 29.257),
    (52, -20.757, 50.743),
    (55, -20.757, 50.743),
    (52, -57.243, 50.743),
    (55, -57.243, 50.743),
    (52, -57.243, 29.257),
    (55, -57.243, 29.257),
    (-55, -57.243, 29.257),
    (-52, -57.243, 29.257),
    (-55, -57.243, 50.743),
    (-75, -77, 40),
    (-52, -57.243, 50.743),
    (-55, -20.757, 50.743),
    (-52, -20.757, 50.743),
    (-75, -74, 40),
    (-55, -20.757, 29.257),
    (-52, -20.757, 29.257),
    (75, -74, 40),
    (75, -77, 40),
    (-64.5, -77, 80),
    (0, 3, 0),
    (0, 3, 80),
    (52, -38.5, 0),
    (0, 0, 0),
    (-52, -38.5, 0),
    (-66, -74, 0),
    (-55, -35.5, 0),
    (55, -35.5, 0),
    (64.5, -77, 0),
    (-52.586, -76.414, 0),
    (52.586, -76.414, 0),
    (-54.414, 2.414, 0),
    (54.414, 2.414, 0),
    (55, -35.5, 80),
    (52, -38.5, 80),
    (64.5, -77, 80),
    (-55, -35.5, 80),
    (-66, -74, 80),
    (-52, -38.5, 80),
    (0, 0, 80),
    (-52.586, -76.414, 80),
    (52.586, -76.414, 80),
    (-54.414, 2.414, 80),
    (54.414, 2.414, 80),
    (-51.414, -0.586, 0),
    (-51.414, -0.586, 80),
    (51.414, -0.586, 0),
    (51.414, -0.586, 80),
    (55.586, -73.414, 0),
    (55.586, -73.414, 80),
    (-55.586, -73.414, 0),
    (-55.586, -73.414, 80),
]))
chamfer.Size = 0.5

doc.recompute()
